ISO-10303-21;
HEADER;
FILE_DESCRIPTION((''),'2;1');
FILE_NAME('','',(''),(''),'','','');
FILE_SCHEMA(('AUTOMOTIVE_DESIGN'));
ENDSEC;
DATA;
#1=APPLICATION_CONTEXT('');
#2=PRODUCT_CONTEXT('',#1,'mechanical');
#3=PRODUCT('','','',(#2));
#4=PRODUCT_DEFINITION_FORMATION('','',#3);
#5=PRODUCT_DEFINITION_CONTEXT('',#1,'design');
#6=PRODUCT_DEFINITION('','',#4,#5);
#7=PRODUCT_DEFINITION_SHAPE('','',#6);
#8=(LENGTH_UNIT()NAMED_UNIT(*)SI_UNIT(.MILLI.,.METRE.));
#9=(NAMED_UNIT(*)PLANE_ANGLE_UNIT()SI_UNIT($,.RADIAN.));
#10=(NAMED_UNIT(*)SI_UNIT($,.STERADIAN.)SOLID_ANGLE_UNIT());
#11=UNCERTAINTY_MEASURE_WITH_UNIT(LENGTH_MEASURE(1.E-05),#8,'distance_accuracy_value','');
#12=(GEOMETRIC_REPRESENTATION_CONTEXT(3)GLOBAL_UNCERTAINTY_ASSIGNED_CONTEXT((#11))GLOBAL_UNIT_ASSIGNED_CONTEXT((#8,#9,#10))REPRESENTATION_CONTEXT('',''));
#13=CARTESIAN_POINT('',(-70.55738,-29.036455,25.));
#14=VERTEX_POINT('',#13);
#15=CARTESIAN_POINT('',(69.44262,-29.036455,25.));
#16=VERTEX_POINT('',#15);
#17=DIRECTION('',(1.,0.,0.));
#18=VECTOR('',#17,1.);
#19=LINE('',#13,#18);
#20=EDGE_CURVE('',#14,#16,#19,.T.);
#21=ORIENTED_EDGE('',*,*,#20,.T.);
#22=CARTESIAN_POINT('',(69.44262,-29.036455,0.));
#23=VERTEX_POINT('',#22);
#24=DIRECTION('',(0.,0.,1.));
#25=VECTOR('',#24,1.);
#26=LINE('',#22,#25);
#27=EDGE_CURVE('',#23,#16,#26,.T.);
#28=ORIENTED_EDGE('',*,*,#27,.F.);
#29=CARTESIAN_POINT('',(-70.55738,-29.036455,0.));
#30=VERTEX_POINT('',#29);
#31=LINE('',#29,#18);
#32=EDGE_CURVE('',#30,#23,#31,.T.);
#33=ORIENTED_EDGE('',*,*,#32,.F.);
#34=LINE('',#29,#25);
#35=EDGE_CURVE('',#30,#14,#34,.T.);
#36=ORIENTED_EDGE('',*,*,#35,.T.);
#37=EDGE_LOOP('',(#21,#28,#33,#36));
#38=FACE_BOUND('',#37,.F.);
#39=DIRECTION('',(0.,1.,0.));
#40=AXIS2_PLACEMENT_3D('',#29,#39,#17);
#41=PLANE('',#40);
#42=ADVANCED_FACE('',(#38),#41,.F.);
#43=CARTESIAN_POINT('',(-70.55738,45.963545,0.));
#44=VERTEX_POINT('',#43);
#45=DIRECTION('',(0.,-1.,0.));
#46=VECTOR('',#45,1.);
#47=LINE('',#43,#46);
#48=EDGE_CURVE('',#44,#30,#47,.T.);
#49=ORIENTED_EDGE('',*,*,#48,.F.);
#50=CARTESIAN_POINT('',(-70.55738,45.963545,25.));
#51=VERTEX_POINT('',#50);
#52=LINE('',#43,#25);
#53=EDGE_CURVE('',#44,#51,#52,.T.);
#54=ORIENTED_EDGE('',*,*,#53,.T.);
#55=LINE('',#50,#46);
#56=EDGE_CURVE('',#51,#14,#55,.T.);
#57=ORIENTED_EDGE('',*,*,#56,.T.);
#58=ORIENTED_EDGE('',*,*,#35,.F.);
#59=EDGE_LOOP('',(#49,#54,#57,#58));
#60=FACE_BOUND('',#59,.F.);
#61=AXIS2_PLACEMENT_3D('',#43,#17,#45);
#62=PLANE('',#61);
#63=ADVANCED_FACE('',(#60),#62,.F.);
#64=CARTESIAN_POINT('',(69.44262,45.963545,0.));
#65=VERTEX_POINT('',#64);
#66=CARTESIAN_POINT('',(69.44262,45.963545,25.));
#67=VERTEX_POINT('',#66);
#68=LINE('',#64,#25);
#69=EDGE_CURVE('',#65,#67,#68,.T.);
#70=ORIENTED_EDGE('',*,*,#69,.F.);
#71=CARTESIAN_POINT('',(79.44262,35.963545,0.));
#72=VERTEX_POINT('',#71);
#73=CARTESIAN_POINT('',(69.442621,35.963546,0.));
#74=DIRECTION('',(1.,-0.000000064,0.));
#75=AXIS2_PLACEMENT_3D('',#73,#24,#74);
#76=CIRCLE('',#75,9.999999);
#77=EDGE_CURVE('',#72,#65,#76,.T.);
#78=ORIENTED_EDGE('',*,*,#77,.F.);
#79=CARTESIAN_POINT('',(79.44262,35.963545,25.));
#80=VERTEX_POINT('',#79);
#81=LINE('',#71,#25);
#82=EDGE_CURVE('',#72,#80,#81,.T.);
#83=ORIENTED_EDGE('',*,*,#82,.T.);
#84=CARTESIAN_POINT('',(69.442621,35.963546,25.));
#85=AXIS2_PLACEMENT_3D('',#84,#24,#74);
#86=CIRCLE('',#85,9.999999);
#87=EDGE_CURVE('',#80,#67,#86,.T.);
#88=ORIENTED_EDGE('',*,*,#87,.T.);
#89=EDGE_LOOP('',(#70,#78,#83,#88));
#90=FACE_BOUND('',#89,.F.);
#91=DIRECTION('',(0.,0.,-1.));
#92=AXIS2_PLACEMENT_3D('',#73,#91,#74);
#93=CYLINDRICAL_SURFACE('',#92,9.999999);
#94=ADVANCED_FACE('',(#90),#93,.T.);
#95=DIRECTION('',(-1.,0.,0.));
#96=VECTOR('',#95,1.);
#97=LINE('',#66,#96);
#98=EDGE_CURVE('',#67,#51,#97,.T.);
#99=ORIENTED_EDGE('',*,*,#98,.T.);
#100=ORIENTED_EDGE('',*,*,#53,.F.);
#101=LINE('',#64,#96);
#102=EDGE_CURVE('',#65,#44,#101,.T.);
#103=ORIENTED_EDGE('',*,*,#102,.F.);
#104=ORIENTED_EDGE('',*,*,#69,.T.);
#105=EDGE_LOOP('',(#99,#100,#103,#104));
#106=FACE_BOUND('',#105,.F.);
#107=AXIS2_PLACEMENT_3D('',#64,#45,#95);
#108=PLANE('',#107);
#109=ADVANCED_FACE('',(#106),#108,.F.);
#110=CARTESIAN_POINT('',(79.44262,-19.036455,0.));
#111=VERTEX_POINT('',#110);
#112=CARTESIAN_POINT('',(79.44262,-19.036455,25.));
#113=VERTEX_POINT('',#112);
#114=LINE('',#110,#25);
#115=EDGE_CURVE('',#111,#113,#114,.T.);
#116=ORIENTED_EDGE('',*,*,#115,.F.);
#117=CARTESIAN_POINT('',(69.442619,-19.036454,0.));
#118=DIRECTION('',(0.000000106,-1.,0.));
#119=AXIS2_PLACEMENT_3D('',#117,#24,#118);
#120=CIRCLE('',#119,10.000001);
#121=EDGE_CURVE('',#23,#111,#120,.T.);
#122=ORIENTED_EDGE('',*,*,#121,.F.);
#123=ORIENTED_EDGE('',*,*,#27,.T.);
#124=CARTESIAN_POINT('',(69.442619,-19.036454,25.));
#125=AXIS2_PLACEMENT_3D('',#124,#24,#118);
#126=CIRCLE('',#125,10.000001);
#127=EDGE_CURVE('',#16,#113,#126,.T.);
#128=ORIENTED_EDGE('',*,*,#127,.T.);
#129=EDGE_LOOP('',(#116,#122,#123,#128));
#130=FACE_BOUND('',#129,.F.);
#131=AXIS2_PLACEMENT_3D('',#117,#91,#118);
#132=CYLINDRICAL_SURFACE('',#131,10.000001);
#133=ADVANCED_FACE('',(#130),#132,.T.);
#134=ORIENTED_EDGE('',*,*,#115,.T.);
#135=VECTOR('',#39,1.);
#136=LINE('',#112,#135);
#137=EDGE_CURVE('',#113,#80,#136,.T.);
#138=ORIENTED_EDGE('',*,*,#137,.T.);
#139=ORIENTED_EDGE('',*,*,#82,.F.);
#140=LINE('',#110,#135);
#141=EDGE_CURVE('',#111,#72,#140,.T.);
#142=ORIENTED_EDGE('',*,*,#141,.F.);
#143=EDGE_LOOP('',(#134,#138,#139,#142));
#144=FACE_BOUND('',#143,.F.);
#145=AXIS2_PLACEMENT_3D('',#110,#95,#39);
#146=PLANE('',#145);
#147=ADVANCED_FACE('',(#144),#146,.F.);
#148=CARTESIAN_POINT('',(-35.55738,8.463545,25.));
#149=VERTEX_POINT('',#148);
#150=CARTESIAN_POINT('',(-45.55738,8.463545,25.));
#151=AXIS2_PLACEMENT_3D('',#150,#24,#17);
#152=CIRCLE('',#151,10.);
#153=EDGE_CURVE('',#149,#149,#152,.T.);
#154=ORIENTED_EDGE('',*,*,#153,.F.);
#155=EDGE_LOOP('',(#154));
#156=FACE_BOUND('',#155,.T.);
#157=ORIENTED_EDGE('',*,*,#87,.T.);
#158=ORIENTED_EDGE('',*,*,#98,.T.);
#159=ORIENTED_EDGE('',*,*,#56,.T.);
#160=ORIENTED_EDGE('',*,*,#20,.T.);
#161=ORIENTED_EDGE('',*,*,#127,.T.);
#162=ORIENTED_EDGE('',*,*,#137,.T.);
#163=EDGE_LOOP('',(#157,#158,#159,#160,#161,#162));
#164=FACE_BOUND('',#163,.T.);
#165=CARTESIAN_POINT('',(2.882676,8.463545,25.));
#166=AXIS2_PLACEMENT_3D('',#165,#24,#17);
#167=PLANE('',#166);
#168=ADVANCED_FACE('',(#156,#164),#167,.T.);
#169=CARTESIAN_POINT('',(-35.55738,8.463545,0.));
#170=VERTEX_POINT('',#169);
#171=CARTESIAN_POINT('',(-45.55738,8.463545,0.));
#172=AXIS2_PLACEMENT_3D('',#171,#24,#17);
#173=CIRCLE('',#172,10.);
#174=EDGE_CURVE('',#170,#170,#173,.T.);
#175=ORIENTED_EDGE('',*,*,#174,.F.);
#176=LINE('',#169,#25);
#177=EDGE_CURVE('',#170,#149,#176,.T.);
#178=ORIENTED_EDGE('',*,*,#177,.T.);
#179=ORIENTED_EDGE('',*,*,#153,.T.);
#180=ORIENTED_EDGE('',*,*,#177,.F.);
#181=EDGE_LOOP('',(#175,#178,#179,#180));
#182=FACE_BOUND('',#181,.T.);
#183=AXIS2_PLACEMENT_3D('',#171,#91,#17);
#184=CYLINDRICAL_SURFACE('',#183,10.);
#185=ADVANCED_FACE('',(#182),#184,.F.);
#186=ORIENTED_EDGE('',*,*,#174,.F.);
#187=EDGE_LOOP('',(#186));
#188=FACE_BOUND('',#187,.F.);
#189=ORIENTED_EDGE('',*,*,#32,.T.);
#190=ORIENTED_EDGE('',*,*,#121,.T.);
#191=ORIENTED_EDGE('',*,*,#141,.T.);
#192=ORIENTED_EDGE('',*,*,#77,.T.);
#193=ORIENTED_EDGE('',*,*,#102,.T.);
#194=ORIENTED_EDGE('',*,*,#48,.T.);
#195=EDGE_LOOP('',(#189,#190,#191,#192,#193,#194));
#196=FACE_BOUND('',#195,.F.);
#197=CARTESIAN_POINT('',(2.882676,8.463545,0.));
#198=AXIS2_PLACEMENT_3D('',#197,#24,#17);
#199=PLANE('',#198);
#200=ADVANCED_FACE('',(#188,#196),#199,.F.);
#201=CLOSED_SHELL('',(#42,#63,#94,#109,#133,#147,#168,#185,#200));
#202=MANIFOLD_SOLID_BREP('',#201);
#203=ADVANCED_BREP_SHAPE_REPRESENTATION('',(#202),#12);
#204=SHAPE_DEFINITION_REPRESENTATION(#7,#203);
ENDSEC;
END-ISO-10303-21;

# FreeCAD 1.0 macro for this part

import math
import FreeCAD as App
import Part
import Sketcher

V = App.Vector

doc = App.newDocument("Part")
body = doc.addObject("PartDesign::Body", "Body")

sketch1 = doc.addObject("Sketcher::SketchObject", "Sketch")
body.addObject(sketch1)
sketch1.AttachmentSupport = (doc.XY_Plane, [""])
sketch1.MapMode = "FlatFace"
sketch1.addGeometry([
    Part.LineSegment(V(69, 46, 0), V(-71, 46, 0)),
    Part.LineSegment(V(-71, 46, 0), V(-71, -29, 0)),
    Part.LineSegment(V(-71, -29, 0), V(69, -29, 0)),
    Part.ArcOfCircle(Part.Circle(V(69, -19, 0), V(0, 0, 1), 10), math.radians(-90), math.radians(0)),
    Part.LineSegment(V(79, -19, 0), V(79, 36, 0)),
    Part.ArcOfCircle(Part.Circle(V(69, 36, 0), V(0, 0, 1), 10), math.radians(0), math.radians(90)),
    Part.Circle(V(-46, 8, 0), V(0, 0, 1), 10),
], False)
sketch1.addConstraint([
    Sketcher.Constraint("Coincident", 0, 2, 1, 1),
    Sketcher.Constraint("Coincident", 1, 2, 2, 1),
    Sketcher.Constraint("Tangent", 2, 2, 3, 1),
    Sketcher.Constraint("Tangent", 3, 2, 4, 1),
    Sketcher.Constraint("Tangent", 4, 2, 5, 1),
    Sketcher.Constraint("Tangent", 5, 2, 0, 1),
    Sketcher.Constraint("Horizontal", 0),
    Sketcher.Constraint("Vertical", 1),
    Sketcher.Constraint("Horizontal", 2),
    Sketcher.Constraint("Vertical", 4),
    Sketcher.Constraint("Equal", 3, 5),
    Sketcher.Constraint("Equal", 5, 6),
    Sketcher.Constraint("Diameter", 6, 20.0),
    Sketcher.Constraint("DistanceX", 0, 2, 0, 1, 140.0),
    Sketcher.Constraint("DistanceY", 1, 2, 1, 1, 75.0),
    Sketcher.Constraint("DistanceX", 6, 3, 3, 3, 114.999999),
    Sketcher.Constraint("DistanceY", 3, 3, 6, 3, 27.499999),
    Sketcher.Constraint("DistanceX", -1, 1, 3, 3, 69.442619),
    Sketcher.Constraint("DistanceY", 3, 3, -1, 1, 19.036454),
])
pad1 = doc.addObject("PartDesign::Pad", "Pad")
body.addObject(pad1)
pad1.Profile = sketch1
pad1.Length = 25

doc.recompute()
